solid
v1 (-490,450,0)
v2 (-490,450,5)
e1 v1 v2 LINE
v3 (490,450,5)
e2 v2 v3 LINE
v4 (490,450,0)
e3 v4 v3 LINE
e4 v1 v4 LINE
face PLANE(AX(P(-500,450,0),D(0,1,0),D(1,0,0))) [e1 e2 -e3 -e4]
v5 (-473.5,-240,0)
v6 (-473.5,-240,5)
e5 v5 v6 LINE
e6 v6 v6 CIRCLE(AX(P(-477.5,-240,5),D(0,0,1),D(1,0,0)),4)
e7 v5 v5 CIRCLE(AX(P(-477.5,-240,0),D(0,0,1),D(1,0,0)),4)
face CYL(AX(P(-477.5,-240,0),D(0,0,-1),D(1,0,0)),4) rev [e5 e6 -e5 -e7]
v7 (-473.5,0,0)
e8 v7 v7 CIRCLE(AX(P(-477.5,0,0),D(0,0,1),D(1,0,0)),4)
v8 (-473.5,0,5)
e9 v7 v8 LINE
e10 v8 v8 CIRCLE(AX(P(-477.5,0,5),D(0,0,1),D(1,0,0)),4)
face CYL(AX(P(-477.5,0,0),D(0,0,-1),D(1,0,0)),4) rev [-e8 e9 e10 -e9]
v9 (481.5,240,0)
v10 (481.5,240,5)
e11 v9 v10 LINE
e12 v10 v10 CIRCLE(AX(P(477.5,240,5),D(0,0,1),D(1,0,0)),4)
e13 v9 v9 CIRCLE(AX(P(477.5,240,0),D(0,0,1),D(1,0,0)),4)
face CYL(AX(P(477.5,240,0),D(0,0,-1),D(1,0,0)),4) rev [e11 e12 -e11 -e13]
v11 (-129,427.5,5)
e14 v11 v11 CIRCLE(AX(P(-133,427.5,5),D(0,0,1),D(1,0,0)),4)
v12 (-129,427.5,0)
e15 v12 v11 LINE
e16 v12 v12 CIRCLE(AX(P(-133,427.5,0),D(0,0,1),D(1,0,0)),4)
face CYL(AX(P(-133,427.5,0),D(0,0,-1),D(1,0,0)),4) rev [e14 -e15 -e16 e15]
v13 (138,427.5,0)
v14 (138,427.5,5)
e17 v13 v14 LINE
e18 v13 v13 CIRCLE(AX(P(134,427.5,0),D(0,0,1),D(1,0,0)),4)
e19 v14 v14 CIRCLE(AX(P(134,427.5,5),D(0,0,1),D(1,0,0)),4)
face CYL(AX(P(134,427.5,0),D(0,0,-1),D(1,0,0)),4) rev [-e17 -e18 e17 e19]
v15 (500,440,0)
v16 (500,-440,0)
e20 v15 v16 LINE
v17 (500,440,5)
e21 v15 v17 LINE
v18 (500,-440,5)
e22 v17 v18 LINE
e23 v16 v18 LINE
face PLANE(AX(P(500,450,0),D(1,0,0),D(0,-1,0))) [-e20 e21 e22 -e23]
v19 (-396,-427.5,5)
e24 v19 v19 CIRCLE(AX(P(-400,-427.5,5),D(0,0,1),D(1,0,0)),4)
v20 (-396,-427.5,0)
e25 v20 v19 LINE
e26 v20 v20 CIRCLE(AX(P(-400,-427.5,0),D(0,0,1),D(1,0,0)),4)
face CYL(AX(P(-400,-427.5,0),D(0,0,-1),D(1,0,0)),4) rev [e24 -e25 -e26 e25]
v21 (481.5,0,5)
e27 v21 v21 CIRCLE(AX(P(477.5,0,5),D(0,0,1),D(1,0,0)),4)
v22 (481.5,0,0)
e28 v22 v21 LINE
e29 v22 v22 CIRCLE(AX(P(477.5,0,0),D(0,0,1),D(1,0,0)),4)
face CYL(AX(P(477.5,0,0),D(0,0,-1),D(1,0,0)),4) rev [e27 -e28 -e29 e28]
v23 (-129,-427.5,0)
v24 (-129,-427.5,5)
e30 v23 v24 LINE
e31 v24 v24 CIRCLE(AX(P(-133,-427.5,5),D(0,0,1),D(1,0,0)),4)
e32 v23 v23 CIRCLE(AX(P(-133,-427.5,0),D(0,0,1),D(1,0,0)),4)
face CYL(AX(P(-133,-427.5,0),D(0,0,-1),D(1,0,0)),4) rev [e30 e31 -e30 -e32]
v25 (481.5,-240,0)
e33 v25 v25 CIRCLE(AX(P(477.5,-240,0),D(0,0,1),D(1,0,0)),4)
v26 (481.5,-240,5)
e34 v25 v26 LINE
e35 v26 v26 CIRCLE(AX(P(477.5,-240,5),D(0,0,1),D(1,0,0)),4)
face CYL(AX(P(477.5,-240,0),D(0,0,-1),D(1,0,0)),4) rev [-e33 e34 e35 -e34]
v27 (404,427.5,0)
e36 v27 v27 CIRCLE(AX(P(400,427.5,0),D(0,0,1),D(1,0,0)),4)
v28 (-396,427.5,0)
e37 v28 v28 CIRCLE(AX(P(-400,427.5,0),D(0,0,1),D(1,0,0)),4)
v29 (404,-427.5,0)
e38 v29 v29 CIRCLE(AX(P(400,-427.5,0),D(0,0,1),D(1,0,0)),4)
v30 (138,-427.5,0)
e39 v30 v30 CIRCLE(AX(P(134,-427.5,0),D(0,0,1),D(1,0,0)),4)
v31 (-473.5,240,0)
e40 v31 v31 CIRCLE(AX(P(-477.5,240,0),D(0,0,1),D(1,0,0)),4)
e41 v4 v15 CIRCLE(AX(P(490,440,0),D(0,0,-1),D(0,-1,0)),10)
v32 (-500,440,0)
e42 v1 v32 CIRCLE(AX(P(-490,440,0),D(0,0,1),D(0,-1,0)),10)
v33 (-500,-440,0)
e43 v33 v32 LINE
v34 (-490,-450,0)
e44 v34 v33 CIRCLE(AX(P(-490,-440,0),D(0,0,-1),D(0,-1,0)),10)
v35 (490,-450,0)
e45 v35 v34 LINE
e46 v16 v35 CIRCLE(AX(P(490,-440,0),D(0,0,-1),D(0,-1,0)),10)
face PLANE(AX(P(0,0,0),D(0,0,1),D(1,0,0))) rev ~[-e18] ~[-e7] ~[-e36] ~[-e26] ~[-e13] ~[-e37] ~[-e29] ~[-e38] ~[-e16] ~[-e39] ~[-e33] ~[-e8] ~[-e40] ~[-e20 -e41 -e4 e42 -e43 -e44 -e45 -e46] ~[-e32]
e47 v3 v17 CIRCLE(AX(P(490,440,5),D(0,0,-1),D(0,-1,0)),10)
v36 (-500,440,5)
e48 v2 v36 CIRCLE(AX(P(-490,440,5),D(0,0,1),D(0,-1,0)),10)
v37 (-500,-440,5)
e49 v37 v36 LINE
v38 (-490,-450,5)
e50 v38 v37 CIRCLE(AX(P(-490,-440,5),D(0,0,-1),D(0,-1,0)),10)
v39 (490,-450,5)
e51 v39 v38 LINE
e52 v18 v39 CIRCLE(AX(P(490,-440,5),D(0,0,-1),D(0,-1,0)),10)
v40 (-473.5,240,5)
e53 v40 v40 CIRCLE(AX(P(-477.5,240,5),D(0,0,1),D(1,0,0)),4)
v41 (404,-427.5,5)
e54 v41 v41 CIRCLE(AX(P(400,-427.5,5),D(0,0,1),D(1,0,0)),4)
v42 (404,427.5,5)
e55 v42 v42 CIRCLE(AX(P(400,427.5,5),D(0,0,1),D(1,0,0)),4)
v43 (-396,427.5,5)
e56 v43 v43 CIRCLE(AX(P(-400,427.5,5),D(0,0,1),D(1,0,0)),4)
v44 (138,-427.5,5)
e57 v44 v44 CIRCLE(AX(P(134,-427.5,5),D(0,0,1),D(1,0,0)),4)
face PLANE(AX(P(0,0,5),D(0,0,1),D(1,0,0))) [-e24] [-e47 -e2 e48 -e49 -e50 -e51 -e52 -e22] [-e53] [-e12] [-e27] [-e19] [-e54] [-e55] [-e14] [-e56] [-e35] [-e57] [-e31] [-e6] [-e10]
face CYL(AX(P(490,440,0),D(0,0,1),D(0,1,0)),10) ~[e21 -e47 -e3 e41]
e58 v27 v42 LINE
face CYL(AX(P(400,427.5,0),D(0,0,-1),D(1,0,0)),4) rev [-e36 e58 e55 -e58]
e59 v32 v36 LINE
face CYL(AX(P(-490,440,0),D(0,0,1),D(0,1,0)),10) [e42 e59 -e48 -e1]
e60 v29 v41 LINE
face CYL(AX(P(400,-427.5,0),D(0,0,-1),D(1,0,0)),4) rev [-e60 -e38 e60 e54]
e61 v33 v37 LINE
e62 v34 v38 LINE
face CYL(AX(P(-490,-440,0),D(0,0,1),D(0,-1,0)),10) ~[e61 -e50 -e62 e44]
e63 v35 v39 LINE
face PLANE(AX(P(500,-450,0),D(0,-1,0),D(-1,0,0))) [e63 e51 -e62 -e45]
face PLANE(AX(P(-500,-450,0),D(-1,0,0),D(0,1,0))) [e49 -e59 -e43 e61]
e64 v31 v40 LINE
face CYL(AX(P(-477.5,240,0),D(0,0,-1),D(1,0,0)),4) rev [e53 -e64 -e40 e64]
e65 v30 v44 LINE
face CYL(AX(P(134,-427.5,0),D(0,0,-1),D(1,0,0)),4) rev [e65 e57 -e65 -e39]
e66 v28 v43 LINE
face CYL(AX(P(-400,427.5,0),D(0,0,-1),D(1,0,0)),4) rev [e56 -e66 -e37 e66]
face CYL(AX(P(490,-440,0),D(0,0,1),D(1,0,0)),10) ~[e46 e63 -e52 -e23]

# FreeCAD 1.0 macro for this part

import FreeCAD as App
import Part
import Sketcher

V = App.Vector
Q = App.Units.Quantity


def edges_at(feature, points):
    """Names of the edges that pass closest to the given points."""
    edges = feature.Shape.Edges
    near = lambda p: min(range(len(edges)), key=lambda i: edges[i].distToShape(Part.Vertex(*p))[0])
    return sorted({f"Edge{near(p) + 1}" for p in points})

doc = App.newDocument("Part")
params = doc.addObject("Spreadsheet::Sheet", "Params")
for row, (alias, value) in enumerate([
    ("sketch1_diameter", "8 mm"),
    ("sketch1_width", "1000 mm"),
    ("sketch1_height", "900 mm"),
    ("pad1_length", "5 mm"),
    ("fillet_radius", "10 mm"),
], start=1):
    params.set(f"A{row}", alias)
    params.set(f"B{row}", "=" + value)
    params.setAlias(f"B{row}", alias)

body = doc.addObject("PartDesign::Body", "Body")

# Sketch on XY plane
sketch1 = body.newObject("Sketcher::SketchObject", "Sketch")
sketch1.AttachmentSupport = (doc.getObject("XY_Plane"), [""])
sketch1.MapMode = "FlatFace"
sketch1.addGeometry([
    Part.LineSegment(V(500, 450, 0), V(-500, 450, 0)),  # 0
    Part.LineSegment(V(-500, 450, 0), V(-500, -450, 0)),  # 1
    Part.LineSegment(V(-500, -450, 0), V(500, -450, 0)),  # 2
    Part.LineSegment(V(500, -450, 0), V(500, 450, 0)),  # 3
    Part.Circle(V(-400, -427.5, 0), V(0, 0, 1), 4),  # 4
    Part.Circle(V(-477.5, -240, 0), V(0, 0, 1), 4),  # 5
    Part.Circle(V(-133, -427.5, 0), V(0, 0, 1), 4),  # 6
    Part.Circle(V(134, -427.5, 0), V(0, 0, 1), 4),  # 7
    Part.Circle(V(400, -427.5, 0), V(0, 0, 1), 4),  # 8
    Part.Circle(V(477.5, -240, 0), V(0, 0, 1), 4),  # 9
    Part.Circle(V(-477.5, 0, 0), V(0, 0, 1), 4),  # 10
    Part.Circle(V(-477.5, 240, 0), V(0, 0, 1), 4),  # 11
    Part.Circle(V(-400, 427.5, 0), V(0, 0, 1), 4),  # 12
    Part.Circle(V(-133, 427.5, 0), V(0, 0, 1), 4),  # 13
    Part.Circle(V(477.5, 0, 0), V(0, 0, 1), 4),  # 14
    Part.Circle(V(134, 427.5, 0), V(0, 0, 1), 4),  # 15
    Part.Circle(V(477.5, 240, 0), V(0, 0, 1), 4),  # 16
    Part.Circle(V(400, 427.5, 0), V(0, 0, 1), 4),  # 17
], False)
sketch1.addConstraint([
    Sketcher.Constraint("Coincident", 0, 2, 1, 1),
    Sketcher.Constraint("Coincident", 1, 2, 2, 1),
    Sketcher.Constraint("Coincident", 2, 2, 3, 1),
    Sketcher.Constraint("Coincident", 3, 2, 0, 1),
    Sketcher.Constraint("Horizontal", 0),
    Sketcher.Constraint("Vertical", 1),
    Sketcher.Constraint("Horizontal", 2),
    Sketcher.Constraint("Vertical", 3),
    Sketcher.Constraint("Equal", 4, 5),
    Sketcher.Constraint("Equal", 5, 6),
    Sketcher.Constraint("Equal", 6, 7),
    Sketcher.Constraint("Equal", 7, 8),
    Sketcher.Constraint("Equal", 8, 9),
    Sketcher.Constraint("Equal", 9, 10),
    Sketcher.Constraint("Equal", 10, 11),
    Sketcher.Constraint("Equal", 11, 12),
    Sketcher.Constraint("Equal", 12, 13),
    Sketcher.Constraint("Equal", 13, 14),
    Sketcher.Constraint("Equal", 14, 15),
    Sketcher.Constraint("Equal", 15, 16),
    Sketcher.Constraint("Equal", 16, 17),
    Sketcher.Constraint("Symmetric", 9, 3, 11, 3, -1, 1),
    Sketcher.Constraint("Symmetric", 8, 3, 12, 3, -1, 1),
    Sketcher.Constraint("Symmetric", 10, 3, 14, 3, -1, 1),
    Sketcher.Constraint("Symmetric", 5, 3, 16, 3, -1, 1),
    Sketcher.Constraint("Symmetric", 4, 3, 17, 3, -1, 1),
    Sketcher.Constraint("Symmetric", 0, 2, 2, 2, -1, 1),
    Sketcher.Constraint("Symmetric", 4, 3, 8, 3, -2),
    Sketcher.Constraint("Symmetric", 5, 3, 9, 3, -2),
    Sketcher.Constraint("Symmetric", 6, 3, 13, 3, -1),
    Sketcher.Constraint("Symmetric", 7, 3, 15, 3, -1),
    Sketcher.Constraint("PointOnObject", 10, 3, -1),
    Sketcher.Constraint("Horizontal", 4, 3, 6, 3),
    Sketcher.Constraint("Horizontal", 6, 3, 7, 3),
    Sketcher.Constraint("Vertical", 5, 3, 10, 3),
    Sketcher.Constraint("Diameter", 4, Q("8 mm")),
    Sketcher.Constraint("DistanceX", 0, 2, 0, 1, Q("1000 mm")),
    Sketcher.Constraint("DistanceY", 1, 2, 1, 1, Q("900 mm")),
    Sketcher.Constraint("DistanceY", 5, 3, -1, 1, Q("240 mm")),
    Sketcher.Constraint("DistanceX", 4, 3, 6, 3, Q("267 mm")),
    Sketcher.Constraint("DistanceX", 6, 3, 7, 3, Q("267 mm")),
    Sketcher.Constraint("DistanceX", 0, 2, 12, 3, Q("100 mm")),
    Sketcher.Constraint("DistanceY", 12, 3, 0, 2, Q("22.5 mm")),
    Sketcher.Constraint("DistanceX", 0, 2, 11, 3, Q("22.5 mm")),
])
sketch1.setExpression("Constraints[35]", "Params.sketch1_diameter")
sketch1.setExpression("Constraints[36]", "Params.sketch1_width")
sketch1.setExpression("Constraints[37]", "Params.sketch1_height")
pad1 = body.newObject("PartDesign::Pad", "Pad")
pad1.Profile = sketch1
pad1.setExpression("Length", "Params.pad1_length")
doc.recompute()

fillet = body.newObject("PartDesign::Fillet", "Fillet")
fillet.Base = (pad1, edges_at(pad1, [
    (500, 450, 2.5),
    (-500, 450, 2.5),
    (500, -450, 2.5),
    (-500, -450, 2.5),
]))
fillet.setExpression("Radius", "Params.fillet_radius")

doc.recompute()
